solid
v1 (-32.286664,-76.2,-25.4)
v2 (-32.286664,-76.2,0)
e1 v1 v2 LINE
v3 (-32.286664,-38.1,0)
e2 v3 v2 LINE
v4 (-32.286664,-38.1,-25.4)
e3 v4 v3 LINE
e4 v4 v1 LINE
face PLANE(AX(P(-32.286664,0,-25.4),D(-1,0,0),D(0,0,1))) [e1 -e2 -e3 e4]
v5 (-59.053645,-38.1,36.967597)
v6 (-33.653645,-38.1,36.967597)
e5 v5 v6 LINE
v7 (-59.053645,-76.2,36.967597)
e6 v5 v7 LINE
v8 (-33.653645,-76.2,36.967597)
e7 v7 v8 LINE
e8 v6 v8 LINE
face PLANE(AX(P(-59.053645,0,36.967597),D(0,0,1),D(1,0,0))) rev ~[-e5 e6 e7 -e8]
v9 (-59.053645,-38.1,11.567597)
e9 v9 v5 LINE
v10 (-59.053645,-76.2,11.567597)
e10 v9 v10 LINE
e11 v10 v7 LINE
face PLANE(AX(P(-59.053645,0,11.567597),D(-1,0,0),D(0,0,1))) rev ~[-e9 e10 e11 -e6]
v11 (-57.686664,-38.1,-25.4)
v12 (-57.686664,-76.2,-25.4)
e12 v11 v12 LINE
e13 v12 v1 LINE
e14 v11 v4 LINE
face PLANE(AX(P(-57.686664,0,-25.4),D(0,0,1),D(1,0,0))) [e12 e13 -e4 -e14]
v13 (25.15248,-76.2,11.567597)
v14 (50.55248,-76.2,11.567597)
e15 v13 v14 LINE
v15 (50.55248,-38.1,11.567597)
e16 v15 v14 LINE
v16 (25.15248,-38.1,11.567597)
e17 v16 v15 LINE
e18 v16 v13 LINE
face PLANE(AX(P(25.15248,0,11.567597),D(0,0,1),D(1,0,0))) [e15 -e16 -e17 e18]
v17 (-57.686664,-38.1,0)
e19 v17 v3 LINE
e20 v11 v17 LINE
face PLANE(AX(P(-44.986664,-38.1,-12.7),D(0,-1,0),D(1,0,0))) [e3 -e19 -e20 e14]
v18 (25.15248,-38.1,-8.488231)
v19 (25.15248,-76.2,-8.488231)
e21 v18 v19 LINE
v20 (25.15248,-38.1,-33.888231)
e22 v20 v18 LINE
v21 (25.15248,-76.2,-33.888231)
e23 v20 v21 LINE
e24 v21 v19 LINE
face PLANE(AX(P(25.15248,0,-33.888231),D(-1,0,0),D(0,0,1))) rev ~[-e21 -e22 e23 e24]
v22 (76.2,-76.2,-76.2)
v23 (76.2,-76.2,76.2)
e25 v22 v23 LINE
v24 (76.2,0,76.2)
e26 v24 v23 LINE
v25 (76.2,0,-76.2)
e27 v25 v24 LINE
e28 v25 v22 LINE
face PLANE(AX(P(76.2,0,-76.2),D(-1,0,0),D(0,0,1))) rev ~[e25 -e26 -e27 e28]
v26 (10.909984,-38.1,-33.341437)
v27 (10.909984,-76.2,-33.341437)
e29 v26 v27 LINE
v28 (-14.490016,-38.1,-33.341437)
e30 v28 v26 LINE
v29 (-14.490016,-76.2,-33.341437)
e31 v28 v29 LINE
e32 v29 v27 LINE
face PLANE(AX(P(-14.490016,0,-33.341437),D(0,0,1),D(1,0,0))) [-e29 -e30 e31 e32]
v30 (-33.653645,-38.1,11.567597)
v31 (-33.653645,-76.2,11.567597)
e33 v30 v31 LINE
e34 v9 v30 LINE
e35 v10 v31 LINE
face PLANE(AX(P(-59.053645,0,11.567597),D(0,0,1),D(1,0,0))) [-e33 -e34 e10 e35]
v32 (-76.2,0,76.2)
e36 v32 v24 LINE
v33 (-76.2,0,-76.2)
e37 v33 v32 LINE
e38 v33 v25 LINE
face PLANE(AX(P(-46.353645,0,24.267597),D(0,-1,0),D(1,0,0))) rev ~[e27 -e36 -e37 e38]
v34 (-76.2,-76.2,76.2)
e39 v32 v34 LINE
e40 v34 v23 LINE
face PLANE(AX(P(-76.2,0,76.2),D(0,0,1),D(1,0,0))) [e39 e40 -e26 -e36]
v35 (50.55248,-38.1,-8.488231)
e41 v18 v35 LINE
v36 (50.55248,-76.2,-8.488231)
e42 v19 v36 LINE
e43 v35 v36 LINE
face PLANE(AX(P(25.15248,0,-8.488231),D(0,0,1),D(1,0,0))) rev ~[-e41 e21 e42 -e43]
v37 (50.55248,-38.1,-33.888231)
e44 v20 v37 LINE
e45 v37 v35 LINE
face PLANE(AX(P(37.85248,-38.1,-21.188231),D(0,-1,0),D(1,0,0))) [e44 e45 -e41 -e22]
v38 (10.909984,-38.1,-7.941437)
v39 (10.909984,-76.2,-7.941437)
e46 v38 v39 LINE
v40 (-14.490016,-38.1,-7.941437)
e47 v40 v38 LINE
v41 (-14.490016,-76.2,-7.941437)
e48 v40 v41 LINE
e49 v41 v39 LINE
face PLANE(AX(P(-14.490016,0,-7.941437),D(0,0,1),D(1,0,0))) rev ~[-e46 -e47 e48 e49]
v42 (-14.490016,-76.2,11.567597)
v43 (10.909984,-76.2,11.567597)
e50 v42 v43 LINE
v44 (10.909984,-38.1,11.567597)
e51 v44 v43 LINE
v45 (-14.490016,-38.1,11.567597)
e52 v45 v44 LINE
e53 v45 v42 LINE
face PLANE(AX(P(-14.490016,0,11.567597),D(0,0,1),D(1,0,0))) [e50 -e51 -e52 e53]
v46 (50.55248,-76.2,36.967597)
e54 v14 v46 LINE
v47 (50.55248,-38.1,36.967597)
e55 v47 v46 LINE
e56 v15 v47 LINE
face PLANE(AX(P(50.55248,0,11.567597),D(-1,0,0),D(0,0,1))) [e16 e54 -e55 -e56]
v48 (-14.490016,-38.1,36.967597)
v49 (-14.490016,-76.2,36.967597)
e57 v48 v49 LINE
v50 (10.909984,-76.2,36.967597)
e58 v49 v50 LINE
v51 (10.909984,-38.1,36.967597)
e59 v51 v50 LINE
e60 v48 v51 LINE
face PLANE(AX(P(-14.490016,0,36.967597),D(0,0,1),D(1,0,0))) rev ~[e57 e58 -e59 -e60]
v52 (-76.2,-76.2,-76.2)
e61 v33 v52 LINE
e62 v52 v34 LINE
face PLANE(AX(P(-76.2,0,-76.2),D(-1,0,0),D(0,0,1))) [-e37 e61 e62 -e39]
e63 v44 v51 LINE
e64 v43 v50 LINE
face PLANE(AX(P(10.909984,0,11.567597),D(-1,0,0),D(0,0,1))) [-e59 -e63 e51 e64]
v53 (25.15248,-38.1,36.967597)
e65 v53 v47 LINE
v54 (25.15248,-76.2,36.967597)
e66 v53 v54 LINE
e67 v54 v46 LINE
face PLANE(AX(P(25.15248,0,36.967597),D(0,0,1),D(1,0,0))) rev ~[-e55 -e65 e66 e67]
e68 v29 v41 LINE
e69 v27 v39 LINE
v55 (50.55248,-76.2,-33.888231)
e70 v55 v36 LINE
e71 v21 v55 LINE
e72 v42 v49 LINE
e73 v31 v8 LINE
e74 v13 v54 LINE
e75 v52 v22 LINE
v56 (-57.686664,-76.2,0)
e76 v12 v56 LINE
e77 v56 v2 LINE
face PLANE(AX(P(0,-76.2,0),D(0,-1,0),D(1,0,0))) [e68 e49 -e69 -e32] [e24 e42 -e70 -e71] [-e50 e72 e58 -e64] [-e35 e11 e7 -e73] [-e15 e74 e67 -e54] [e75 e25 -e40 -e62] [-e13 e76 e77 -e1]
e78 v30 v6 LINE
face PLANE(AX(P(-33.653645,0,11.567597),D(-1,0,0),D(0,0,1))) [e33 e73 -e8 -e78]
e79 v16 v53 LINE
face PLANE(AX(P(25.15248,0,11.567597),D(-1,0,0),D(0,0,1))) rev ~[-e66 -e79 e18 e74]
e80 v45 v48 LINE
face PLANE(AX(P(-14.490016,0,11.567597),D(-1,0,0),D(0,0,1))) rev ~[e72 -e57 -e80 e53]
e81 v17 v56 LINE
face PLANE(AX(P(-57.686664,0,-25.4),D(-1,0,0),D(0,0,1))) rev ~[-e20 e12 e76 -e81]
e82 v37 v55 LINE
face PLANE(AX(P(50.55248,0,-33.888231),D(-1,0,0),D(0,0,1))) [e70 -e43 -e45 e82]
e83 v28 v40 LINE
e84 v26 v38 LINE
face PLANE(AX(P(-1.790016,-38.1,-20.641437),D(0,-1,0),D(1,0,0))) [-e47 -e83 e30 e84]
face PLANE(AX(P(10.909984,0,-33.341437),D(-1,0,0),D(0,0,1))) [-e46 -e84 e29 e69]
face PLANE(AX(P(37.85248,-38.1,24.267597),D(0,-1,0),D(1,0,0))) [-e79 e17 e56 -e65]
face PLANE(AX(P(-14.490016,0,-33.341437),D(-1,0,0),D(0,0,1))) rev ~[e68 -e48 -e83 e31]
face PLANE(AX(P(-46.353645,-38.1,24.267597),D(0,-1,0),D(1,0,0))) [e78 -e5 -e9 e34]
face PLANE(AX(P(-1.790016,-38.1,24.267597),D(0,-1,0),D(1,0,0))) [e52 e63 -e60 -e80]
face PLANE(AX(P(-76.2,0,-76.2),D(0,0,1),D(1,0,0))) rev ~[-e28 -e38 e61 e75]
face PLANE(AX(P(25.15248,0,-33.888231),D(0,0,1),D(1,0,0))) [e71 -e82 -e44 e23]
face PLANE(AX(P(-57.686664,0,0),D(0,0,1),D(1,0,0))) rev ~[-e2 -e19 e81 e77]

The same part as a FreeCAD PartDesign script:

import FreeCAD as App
import Part
import Sketcher
from FreeCAD import Vector
Q = App.Units.Quantity

doc = App.newDocument("Part")
body = doc.addObject("PartDesign::Body", "Body")

sketch1 = body.newObject("Sketcher::SketchObject", "Sketch")
sketch1.AttachmentSupport = (doc.getObject("XZ_Plane"), [""])
sketch1.MapMode = "FlatFace"
sketch1.addGeometry(Part.LineSegment(Vector(-76, 76, 0), Vector(-76, -76, 0)), False)
sketch1.addGeometry(Part.LineSegment(Vector(-76, -76, 0), Vector(76, -76, 0)), False)
sketch1.addGeometry(Part.LineSegment(Vector(76, -76, 0), Vector(76, 76, 0)), False)
sketch1.addGeometry(Part.LineSegment(Vector(76, 76, 0), Vector(-76, 76, 0)), False)
sketch1.addGeometry(Part.LineSegment(Vector(-32, -25, 0), Vector(-58, -25, 0)), False)
sketch1.addGeometry(Part.LineSegment(Vector(-58, -25, 0), Vector(-58, 0, 0)), False)
sketch1.addGeometry(Part.LineSegment(Vector(-58, 0, 0), Vector(-32, 0, 0)), False)
sketch1.addGeometry(Part.LineSegment(Vector(-32, 0, 0), Vector(-32, -25, 0)), False)
sketch1.addGeometry(Part.LineSegment(Vector(11, -33, 0), Vector(-14, -33, 0)), False)
sketch1.addGeometry(Part.LineSegment(Vector(-14, -33, 0), Vector(-14, -8, 0)), False)
sketch1.addGeometry(Part.LineSegment(Vector(-14, -8, 0), Vector(11, -8, 0)), False)
sketch1.addGeometry(Part.LineSegment(Vector(11, -8, 0), Vector(11, -33, 0)), False)
sketch1.addGeometry(Part.LineSegment(Vector(51, -34, 0), Vector(25, -34, 0)), False)
sketch1.addGeometry(Part.LineSegment(Vector(25, -34, 0), Vector(25, -8, 0)), False)
sketch1.addGeometry(Part.LineSegment(Vector(25, -8, 0), Vector(51, -8, 0)), False)
sketch1.addGeometry(Part.LineSegment(Vector(51, -8, 0), Vector(51, -34, 0)), False)
sketch1.addGeometry(Part.LineSegment(Vector(-34, 12, 0), Vector(-59, 12, 0)), False)
sketch1.addGeometry(Part.LineSegment(Vector(-59, 12, 0), Vector(-59, 37, 0)), False)
sketch1.addGeometry(Part.LineSegment(Vector(-59, 37, 0), Vector(-34, 37, 0)), False)
sketch1.addGeometry(Part.LineSegment(Vector(-34, 37, 0), Vector(-34, 12, 0)), False)
sketch1.addGeometry(Part.LineSegment(Vector(11, 12, 0), Vector(-14, 12, 0)), False)
sketch1.addGeometry(Part.LineSegment(Vector(-14, 12, 0), Vector(-14, 37, 0)), False)
sketch1.addGeometry(Part.LineSegment(Vector(-14, 37, 0), Vector(11, 37, 0)), False)
sketch1.addGeometry(Part.LineSegment(Vector(11, 37, 0), Vector(11, 12, 0)), False)
sketch1.addGeometry(Part.LineSegment(Vector(51, 12, 0), Vector(25, 12, 0)), False)
sketch1.addGeometry(Part.LineSegment(Vector(25, 12, 0), Vector(25, 37, 0)), False)
sketch1.addGeometry(Part.LineSegment(Vector(25, 37, 0), Vector(51, 37, 0)), False)
sketch1.addGeometry(Part.LineSegment(Vector(51, 37, 0), Vector(51, 12, 0)), False)
sketch1.addConstraint(Sketcher.Constraint("Coincident", 0, 2, 1, 1))
sketch1.addConstraint(Sketcher.Constraint("Coincident", 1, 2, 2, 1))
sketch1.addConstraint(Sketcher.Constraint("Coincident", 2, 2, 3, 1))
sketch1.addConstraint(Sketcher.Constraint("Coincident", 3, 2, 0, 1))
sketch1.addConstraint(Sketcher.Constraint("Coincident", 4, 2, 5, 1))
sketch1.addConstraint(Sketcher.Constraint("Coincident", 5, 2, 6, 1))
sketch1.addConstraint(Sketcher.Constraint("Coincident", 6, 2, 7, 1))
sketch1.addConstraint(Sketcher.Constraint("Coincident", 7, 2, 4, 1))
sketch1.addConstraint(Sketcher.Constraint("Coincident", 8, 2, 9, 1))
sketch1.addConstraint(Sketcher.Constraint("Coincident", 9, 2, 10, 1))
sketch1.addConstraint(Sketcher.Constraint("Coincident", 10, 2, 11, 1))
sketch1.addConstraint(Sketcher.Constraint("Coincident", 11, 2, 8, 1))
sketch1.addConstraint(Sketcher.Constraint("Coincident", 12, 2, 13, 1))
sketch1.addConstraint(Sketcher.Constraint("Coincident", 13, 2, 14, 1))
sketch1.addConstraint(Sketcher.Constraint("Coincident", 14, 2, 15, 1))
sketch1.addConstraint(Sketcher.Constraint("Coincident", 15, 2, 12, 1))
sketch1.addConstraint(Sketcher.Constraint("Coincident", 16, 2, 17, 1))
sketch1.addConstraint(Sketcher.Constraint("Coincident", 17, 2, 18, 1))
sketch1.addConstraint(Sketcher.Constraint("Coincident", 18, 2, 19, 1))
sketch1.addConstraint(Sketcher.Constraint("Coincident", 19, 2, 16, 1))
sketch1.addConstraint(Sketcher.Constraint("Coincident", 20, 2, 21, 1))
sketch1.addConstraint(Sketcher.Constraint("Coincident", 21, 2, 22, 1))
sketch1.addConstraint(Sketcher.Constraint("Coincident", 22, 2, 23, 1))
sketch1.addConstraint(Sketcher.Constraint("Coincident", 23, 2, 20, 1))
sketch1.addConstraint(Sketcher.Constraint("Coincident", 24, 2, 25, 1))
sketch1.addConstraint(Sketcher.Constraint("Coincident", 25, 2, 26, 1))
sketch1.addConstraint(Sketcher.Constraint("Coincident", 26, 2, 27, 1))
sketch1.addConstraint(Sketcher.Constraint("Coincident", 27, 2, 24, 1))
sketch1.addConstraint(Sketcher.Constraint("Vertical", 0))
sketch1.addConstraint(Sketcher.Constraint("Horizontal", 1))
sketch1.addConstraint(Sketcher.Constraint("Vertical", 2))
sketch1.addConstraint(Sketcher.Constraint("Horizontal", 3))
sketch1.addConstraint(Sketcher.Constraint("Horizontal", 4))
sketch1.addConstraint(Sketcher.Constraint("Vertical", 5))
sketch1.addConstraint(Sketcher.Constraint("Horizontal", 6))
sketch1.addConstraint(Sketcher.Constraint("Vertical", 7))
sketch1.addConstraint(Sketcher.Constraint("Horizontal", 8))
sketch1.addConstraint(Sketcher.Constraint("Vertical", 9))
sketch1.addConstraint(Sketcher.Constraint("Horizontal", 10))
sketch1.addConstraint(Sketcher.Constraint("Vertical", 11))
sketch1.addConstraint(Sketcher.Constraint("Horizontal", 12))
sketch1.addConstraint(Sketcher.Constraint("Vertical", 13))
sketch1.addConstraint(Sketcher.Constraint("Horizontal", 14))
sketch1.addConstraint(Sketcher.Constraint("Vertical", 15))
sketch1.addConstraint(Sketcher.Constraint("Horizontal", 16))
sketch1.addConstraint(Sketcher.Constraint("Vertical", 17))
sketch1.addConstraint(Sketcher.Constraint("Horizontal", 18))
sketch1.addConstraint(Sketcher.Constraint("Vertical", 19))
sketch1.addConstraint(Sketcher.Constraint("Horizontal", 20))
sketch1.addConstraint(Sketcher.Constraint("Vertical", 21))
sketch1.addConstraint(Sketcher.Constraint("Horizontal", 22))
sketch1.addConstraint(Sketcher.Constraint("Vertical", 23))
sketch1.addConstraint(Sketcher.Constraint("Horizontal", 24))
sketch1.addConstraint(Sketcher.Constraint("Vertical", 25))
sketch1.addConstraint(Sketcher.Constraint("Horizontal", 26))
sketch1.addConstraint(Sketcher.Constraint("Vertical", 27))
sketch1.addConstraint(Sketcher.Constraint("Symmetric", 0, 2, 2, 2, -1, 1))
sketch1.addConstraint(Sketcher.Constraint("PointOnObject", 5, 2, -1))
sketch1.addConstraint(Sketcher.Constraint("Horizontal", 19, 2, 20, 2))
sketch1.addConstraint(Sketcher.Constraint("Horizontal", 18, 2, 21, 2))
sketch1.addConstraint(Sketcher.Constraint("Horizontal", 23, 2, 24, 2))
sketch1.addConstraint(Sketcher.Constraint("Horizontal", 22, 2, 25, 2))
sketch1.addConstraint(Sketcher.Constraint("Vertical", 9, 2, 20, 2))
sketch1.addConstraint(Sketcher.Constraint("Vertical", 11, 2, 22, 2))
sketch1.addConstraint(Sketcher.Constraint("Vertical", 13, 2, 24, 2))
sketch1.addConstraint(Sketcher.Constraint("Vertical", 15, 2, 26, 2))
sketch1.addConstraint(Sketcher.Constraint("Equal", 6, 8))
sketch1.addConstraint(Sketcher.Constraint("Equal", 10, 12))
sketch1.addConstraint(Sketcher.Constraint("Equal", 14, 16))
sketch1.addConstraint(Sketcher.Constraint("Equal", 3, 0))
sketch1.addConstraint(Sketcher.Constraint("Equal", 26, 5))
sketch1.addConstraint(Sketcher.Constraint("Equal", 7, 9))
sketch1.addConstraint(Sketcher.Constraint("Equal", 11, 13))
sketch1.addConstraint(Sketcher.Constraint("Equal", 15, 17))
sketch1.addConstraint(Sketcher.Constraint("DistanceX", 1, 1, 1, 2, Q("6 in")))
sketch1.addConstraint(Sketcher.Constraint("DistanceX", 4, 2, 4, 1, Q("1 in")))
sketch1.addConstraint(Sketcher.Constraint("DistanceX", -1, 1, 12, 2, Q("25.15248 mm")))
sketch1.addConstraint(Sketcher.Constraint("DistanceY", 12, 2, -1, 1, Q("33.888231 mm")))
sketch1.addConstraint(Sketcher.Constraint("DistanceX", 7, 2, 8, 2, Q("17.796648 mm")))
sketch1.addConstraint(Sketcher.Constraint("DistanceX", 16, 2, 5, 2, Q("1.366981 mm")))
sketch1.addConstraint(Sketcher.Constraint("DistanceX", 4, 2, -1, 1, Q("57.686664 mm")))
sketch1.addConstraint(Sketcher.Constraint("DistanceY", 8, 2, -1, 1, Q("33.341437 mm")))
sketch1.addConstraint(Sketcher.Constraint("DistanceY", -1, 1, 16, 2, Q("11.567597 mm")))
pad1 = body.newObject("PartDesign::Pad", "Pad")
pad1.Profile = sketch1
pad1.Length = Q("3 in")

sketch2 = body.newObject("Sketcher::SketchObject", "Sketch001")
sketch2.AttachmentSupport = (doc.getObject("XZ_Plane"), [""])
sketch2.MapMode = "FlatFace"
sketch2.addGeometry(Part.LineSegment(Vector(-59, 37, 0), Vector(-59, 12, 0)), False)
sketch2.addGeometry(Part.LineSegment(Vector(-59, 12, 0), Vector(-34, 12, 0)), False)
sketch2.addGeometry(Part.LineSegment(Vector(-34, 12, 0), Vector(-34, 37, 0)), False)
sketch2.addGeometry(Part.LineSegment(Vector(-34, 37, 0), Vector(-59, 37, 0)), False)
sketch2.addGeometry(Part.LineSegment(Vector(-14, 37, 0), Vector(-14, 12, 0)), False)
sketch2.addGeometry(Part.LineSegment(Vector(-14, 12, 0), Vector(11, 12, 0)), False)
sketch2.addGeometry(Part.LineSegment(Vector(11, 12, 0), Vector(11, 37, 0)), False)
sketch2.addGeometry(Part.LineSegment(Vector(11, 37, 0), Vector(-14, 37, 0)), False)
sketch2.addGeometry(Part.LineSegment(Vector(25, 37, 0), Vector(25, 12, 0)), False)
sketch2.addGeometry(Part.LineSegment(Vector(25, 12, 0), Vector(51, 12, 0)), False)
sketch2.addGeometry(Part.LineSegment(Vector(51, 12, 0), Vector(51, 37, 0)), False)
sketch2.addGeometry(Part.LineSegment(Vector(51, 37, 0), Vector(25, 37, 0)), False)
sketch2.addGeometry(Part.LineSegment(Vector(-14, -8, 0), Vector(-14, -33, 0)), False)
sketch2.addGeometry(Part.LineSegment(Vector(-14, -33, 0), Vector(11, -33, 0)), False)
sketch2.addGeometry(Part.LineSegment(Vector(11, -33, 0), Vector(11, -8, 0)), False)
sketch2.addGeometry(Part.LineSegment(Vector(11, -8, 0), Vector(-14, -8, 0)), False)
sketch2.addGeometry(Part.LineSegment(Vector(-58, 0, 0), Vector(-58, -25, 0)), False)
sketch2.addGeometry(Part.LineSegment(Vector(-58, -25, 0), Vector(-32, -25, 0)), False)
sketch2.addGeometry(Part.LineSegment(Vector(-32, -25, 0), Vector(-32, 0, 0)), False)
sketch2.addGeometry(Part.LineSegment(Vector(-32, 0, 0), Vector(-58, 0, 0)), False)
sketch2.addGeometry(Part.LineSegment(Vector(25, -8, 0), Vector(25, -34, 0)), False)
sketch2.addGeometry(Part.LineSegment(Vector(25, -34, 0), Vector(51, -34, 0)), False)
sketch2.addGeometry(Part.LineSegment(Vector(51, -34, 0), Vector(51, -8, 0)), False)
sketch2.addGeometry(Part.LineSegment(Vector(51, -8, 0), Vector(25, -8, 0)), False)
sketch2.addConstraint(Sketcher.Constraint("Coincident", 0, 2, 1, 1))
sketch2.addConstraint(Sketcher.Constraint("Coincident", 1, 2, 2, 1))
sketch2.addConstraint(Sketcher.Constraint("Coincident", 2, 2, 3, 1))
sketch2.addConstraint(Sketcher.Constraint("Coincident", 3, 2, 0, 1))
sketch2.addConstraint(Sketcher.Constraint("Coincident", 4, 2, 5, 1))
sketch2.addConstraint(Sketcher.Constraint("Coincident", 5, 2, 6, 1))
sketch2.addConstraint(Sketcher.Constraint("Coincident", 6, 2, 7, 1))
sketch2.addConstraint(Sketcher.Constraint("Coincident", 7, 2, 4, 1))
sketch2.addConstraint(Sketcher.Constraint("Coincident", 8, 2, 9, 1))
sketch2.addConstraint(Sketcher.Constraint("Coincident", 9, 2, 10, 1))
sketch2.addConstraint(Sketcher.Constraint("Coincident", 10, 2, 11, 1))
sketch2.addConstraint(Sketcher.Constraint("Coincident", 11, 2, 8, 1))
sketch2.addConstraint(Sketcher.Constraint("Coincident", 12, 2, 13, 1))
sketch2.addConstraint(Sketcher.Constraint("Coincident", 13, 2, 14, 1))
sketch2.addConstraint(Sketcher.Constraint("Coincident", 14, 2, 15, 1))
sketch2.addConstraint(Sketcher.Constraint("Coincident", 15, 2, 12, 1))
sketch2.addConstraint(Sketcher.Constraint("Coincident", 16, 2, 17, 1))
sketch2.addConstraint(Sketcher.Constraint("Coincident", 17, 2, 18, 1))
sketch2.addConstraint(Sketcher.Constraint("Coincident", 18, 2, 19, 1))
sketch2.addConstraint(Sketcher.Constraint("Coincident", 19, 2, 16, 1))
sketch2.addConstraint(Sketcher.Constraint("Coincident", 20, 2, 21, 1))
sketch2.addConstraint(Sketcher.Constraint("Coincident", 21, 2, 22, 1))
sketch2.addConstraint(Sketcher.Constraint("Coincident", 22, 2, 23, 1))
sketch2.addConstraint(Sketcher.Constraint("Coincident", 23, 2, 20, 1))
sketch2.addConstraint(Sketcher.Constraint("Vertical", 0))
sketch2.addConstraint(Sketcher.Constraint("Horizontal", 1))
sketch2.addConstraint(Sketcher.Constraint("Vertical", 2))
sketch2.addConstraint(Sketcher.Constraint("Horizontal", 3))
sketch2.addConstraint(Sketcher.Constraint("Vertical", 4))
sketch2.addConstraint(Sketcher.Constraint("Horizontal", 5))
sketch2.addConstraint(Sketcher.Constraint("Vertical", 6))
sketch2.addConstraint(Sketcher.Constraint("Horizontal", 7))
sketch2.addConstraint(Sketcher.Constraint("Vertical", 8))
sketch2.addConstraint(Sketcher.Constraint("Horizontal", 9))
sketch2.addConstraint(Sketcher.Constraint("Vertical", 10))
sketch2.addConstraint(Sketcher.Constraint("Horizontal", 11))
sketch2.addConstraint(Sketcher.Constraint("Vertical", 12))
sketch2.addConstraint(Sketcher.Constraint("Horizontal", 13))
sketch2.addConstraint(Sketcher.Constraint("Vertical", 14))
sketch2.addConstraint(Sketcher.Constraint("Horizontal", 15))
sketch2.addConstraint(Sketcher.Constraint("Vertical", 16))
sketch2.addConstraint(Sketcher.Constraint("Horizontal", 17))
sketch2.addConstraint(Sketcher.Constraint("Vertical", 18))
sketch2.addConstraint(Sketcher.Constraint("Horizontal", 19))
sketch2.addConstraint(Sketcher.Constraint("Vertical", 20))
sketch2.addConstraint(Sketcher.Constraint("Horizontal", 21))
sketch2.addConstraint(Sketcher.Constraint("Vertical", 22))
sketch2.addConstraint(Sketcher.Constraint("Horizontal", 23))
sketch2.addConstraint(Sketcher.Constraint("PointOnObject", 18, 2, -1))
sketch2.addConstraint(Sketcher.Constraint("Horizontal", 1, 2, 4, 2))
sketch2.addConstraint(Sketcher.Constraint("Horizontal", 3, 2, 6, 2))
sketch2.addConstraint(Sketcher.Constraint("Horizontal", 5, 2, 8, 2))
sketch2.addConstraint(Sketcher.Constraint("Horizontal", 7, 2, 10, 2))
sketch2.addConstraint(Sketcher.Constraint("Vertical", 7, 2, 12, 2))
sketch2.addConstraint(Sketcher.Constraint("Vertical", 6, 2, 13, 2))
sketch2.addConstraint(Sketcher.Constraint("Vertical", 11, 2, 20, 2))
sketch2.addConstraint(Sketcher.Constraint("Vertical", 10, 2, 21, 2))
sketch2.addConstraint(Sketcher.Constraint("Equal", 3, 5))
sketch2.addConstraint(Sketcher.Constraint("Equal", 7, 9))
sketch2.addConstraint(Sketcher.Constraint("Equal", 15, 17))
sketch2.addConstraint(Sketcher.Constraint("Equal", 23, 0))
sketch2.addConstraint(Sketcher.Constraint("Equal", 10, 12))
sketch2.addConstraint(Sketcher.Constraint("Equal", 14, 16))
sketch2.addConstraint(Sketcher.Constraint("Equal", 18, 20))
sketch2.addConstraint(Sketcher.Constraint("DistanceX", 1, 1, 1, 2, Q("1 in")))
sketch2.addConstraint(Sketcher.Constraint("DistanceX", -1, 1, 8, 2, Q("25.15248 mm")))
sketch2.addConstraint(Sketcher.Constraint("DistanceY", 20, 2, -1, 1, Q("33.888231 mm")))
sketch2.addConstraint(Sketcher.Constraint("DistanceX", 1, 2, 4, 2, Q("19.163629 mm")))
sketch2.addConstraint(Sketcher.Constraint("DistanceX", 0, 2, 16, 2, Q("1.366981 mm")))
sketch2.addConstraint(Sketcher.Constraint("DistanceX", 0, 2, -1, 1, Q("59.053645 mm")))
sketch2.addConstraint(Sketcher.Constraint("DistanceY", -1, 1, 0, 2, Q("11.567597 mm")))
sketch2.addConstraint(Sketcher.Constraint("DistanceY", 12, 2, -1, 1, Q("33.341437 mm")))
pad2 = body.newObject("PartDesign::Pad", "Pad001")
pad2.Profile = sketch2
pad2.Length = Q("1.5 in")

doc.recompute()
